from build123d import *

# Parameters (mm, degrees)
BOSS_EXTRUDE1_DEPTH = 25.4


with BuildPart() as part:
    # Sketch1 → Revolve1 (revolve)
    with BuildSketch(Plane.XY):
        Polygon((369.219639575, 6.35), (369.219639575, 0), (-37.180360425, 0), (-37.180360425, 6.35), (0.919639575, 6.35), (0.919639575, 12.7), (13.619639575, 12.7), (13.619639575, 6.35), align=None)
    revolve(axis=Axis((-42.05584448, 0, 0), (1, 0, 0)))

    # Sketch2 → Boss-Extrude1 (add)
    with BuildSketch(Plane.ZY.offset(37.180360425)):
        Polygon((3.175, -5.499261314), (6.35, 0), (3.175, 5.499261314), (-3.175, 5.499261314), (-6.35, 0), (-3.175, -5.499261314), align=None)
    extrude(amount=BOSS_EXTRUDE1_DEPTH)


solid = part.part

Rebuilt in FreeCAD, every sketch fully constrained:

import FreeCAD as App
import Part
import Sketcher
Q = App.Units.Quantity


def add_polygon(sketch, points):
    """Adds a closed chain of lines whose ends are joined by coincident constraints."""
    first, n = sketch.GeometryCount, len(points)
    for a, b in zip(points, points[1:] + points[:1]):
        sketch.addGeometry(Part.LineSegment(App.Vector(*a, 0), App.Vector(*b, 0)), False)
    for i in range(n):
        sketch.addConstraint(Sketcher.Constraint("Coincident", first + i, 2, first + (i + 1) % n, 1))

doc = App.newDocument("Part")
params = doc.addObject("Spreadsheet::Sheet", "Params")
for row, (alias, value) in enumerate([
    ("sketch1_width", "14 in"),
    ("sketch1_width2", "16 in"),
    ("sketch1_width3", "0.5 in"),
    ("sketch1_height", "0.25 in"),
    ("revolution_angle", "360 deg"),
    ("sketch2_height", "0.25 in"),
    ("pad1_length", "1 in"),
], start=1):
    params.set(f"A{row}", alias)
    params.set(f"B{row}", "=" + value)
    params.setAlias(f"B{row}", alias)

body = doc.addObject("PartDesign::Body", "Body")

sketch1 = body.newObject("Sketcher::SketchObject", "Sketch")
sketch1.AttachmentSupport = (doc.getObject("XY_Plane"), [""])
sketch1.MapMode = "FlatFace"
add_polygon(sketch1, [(369.21964, 0), (369.21964, 6.35), (13.61964, 6.35), (13.61964, 12.7), (0.91964, 12.7), (0.91964, 6.35), (-37.18036, 6.35), (-37.18036, 0)])
sketch1.addConstraint([
    Sketcher.Constraint("Vertical", 0),
    Sketcher.Constraint("Horizontal", 1),
    Sketcher.Constraint("Vertical", 2),
    Sketcher.Constraint("Horizontal", 3),
    Sketcher.Constraint("Vertical", 4),
    Sketcher.Constraint("Horizontal", 5),
    Sketcher.Constraint("Vertical", 6),
    Sketcher.Constraint("Horizontal", 7),
    Sketcher.Constraint("PointOnObject", 6, 2, -1),
    Sketcher.Constraint("Horizontal", 1, 2, 4, 2),
    Sketcher.Constraint("Equal", 0, 2),
    Sketcher.Constraint("DistanceX", 1, 2, 1, 1, Q("14 in")),
    Sketcher.Constraint("DistanceX", 7, 1, 7, 2, Q("16 in")),
    Sketcher.Constraint("DistanceX", 3, 2, 3, 1, Q("0.5 in")),
    Sketcher.Constraint("DistanceY", 0, 1, 0, 2, Q("0.25 in")),
    Sketcher.Constraint("DistanceX", -1, 1, 0, 2, 369.21964),
])
sketch1.setExpression("Constraints[19]", "Params.sketch1_width")
sketch1.setExpression("Constraints[20]", "Params.sketch1_width2")
sketch1.setExpression("Constraints[21]", "Params.sketch1_width3")
sketch1.setExpression("Constraints[22]", "Params.sketch1_height")
revolution = body.newObject("PartDesign::Revolution", "Revolution")
revolution.Profile = sketch1
revolution.ReferenceAxis = (sketch1, ["H_Axis"])
revolution.setExpression("Angle", "Params.revolution_angle")

sketch2 = body.newObject("Sketcher::SketchObject", "Sketch001")
sketch2.AttachmentSupport = (doc.getObject("YZ_Plane"), [""])
sketch2.MapMode = "FlatFace"
sketch2.AttachmentOffset = App.Placement(App.Vector(0, 0, -37.18036), App.Rotation())
add_polygon(sketch2, [(-5.499261, 3.175), (0, 6.35), (5.499261, 3.175), (5.499261, -3.175), (0, -6.35), (-5.499261, -3.175)])
sketch2.addConstraint([
    Sketcher.Constraint("Vertical", 2),
    Sketcher.Constraint("Vertical", 5),
    Sketcher.Constraint("Symmetric", 0, 2, 3, 2, -1, 1),
    Sketcher.Constraint("Symmetric", 1, 2, 4, 2, -1, 1),
    Sketcher.Constraint("PointOnObject", 0, 2, -2),
    Sketcher.Constraint("Parallel", 0, 3),
    Sketcher.Constraint("Horizontal", 2, 2, 4, 2),
    Sketcher.Constraint("Angle", 0, Q("30 deg")),
    Sketcher.Constraint("DistanceY", 2, 2, 2, 1, Q("0.25 in")),
    Sketcher.Constraint("DistanceY", 3, 2, 0, 2, Q("0.5 in")),
])
sketch2.setExpression("Constraints[14]", "Params.sketch2_height")
pad1 = body.newObject("PartDesign::Pad", "Pad")
pad1.Profile = sketch2
pad1.setExpression("Length", "Params.pad1_length")
pad1.Reversed = True

doc.recompute()
